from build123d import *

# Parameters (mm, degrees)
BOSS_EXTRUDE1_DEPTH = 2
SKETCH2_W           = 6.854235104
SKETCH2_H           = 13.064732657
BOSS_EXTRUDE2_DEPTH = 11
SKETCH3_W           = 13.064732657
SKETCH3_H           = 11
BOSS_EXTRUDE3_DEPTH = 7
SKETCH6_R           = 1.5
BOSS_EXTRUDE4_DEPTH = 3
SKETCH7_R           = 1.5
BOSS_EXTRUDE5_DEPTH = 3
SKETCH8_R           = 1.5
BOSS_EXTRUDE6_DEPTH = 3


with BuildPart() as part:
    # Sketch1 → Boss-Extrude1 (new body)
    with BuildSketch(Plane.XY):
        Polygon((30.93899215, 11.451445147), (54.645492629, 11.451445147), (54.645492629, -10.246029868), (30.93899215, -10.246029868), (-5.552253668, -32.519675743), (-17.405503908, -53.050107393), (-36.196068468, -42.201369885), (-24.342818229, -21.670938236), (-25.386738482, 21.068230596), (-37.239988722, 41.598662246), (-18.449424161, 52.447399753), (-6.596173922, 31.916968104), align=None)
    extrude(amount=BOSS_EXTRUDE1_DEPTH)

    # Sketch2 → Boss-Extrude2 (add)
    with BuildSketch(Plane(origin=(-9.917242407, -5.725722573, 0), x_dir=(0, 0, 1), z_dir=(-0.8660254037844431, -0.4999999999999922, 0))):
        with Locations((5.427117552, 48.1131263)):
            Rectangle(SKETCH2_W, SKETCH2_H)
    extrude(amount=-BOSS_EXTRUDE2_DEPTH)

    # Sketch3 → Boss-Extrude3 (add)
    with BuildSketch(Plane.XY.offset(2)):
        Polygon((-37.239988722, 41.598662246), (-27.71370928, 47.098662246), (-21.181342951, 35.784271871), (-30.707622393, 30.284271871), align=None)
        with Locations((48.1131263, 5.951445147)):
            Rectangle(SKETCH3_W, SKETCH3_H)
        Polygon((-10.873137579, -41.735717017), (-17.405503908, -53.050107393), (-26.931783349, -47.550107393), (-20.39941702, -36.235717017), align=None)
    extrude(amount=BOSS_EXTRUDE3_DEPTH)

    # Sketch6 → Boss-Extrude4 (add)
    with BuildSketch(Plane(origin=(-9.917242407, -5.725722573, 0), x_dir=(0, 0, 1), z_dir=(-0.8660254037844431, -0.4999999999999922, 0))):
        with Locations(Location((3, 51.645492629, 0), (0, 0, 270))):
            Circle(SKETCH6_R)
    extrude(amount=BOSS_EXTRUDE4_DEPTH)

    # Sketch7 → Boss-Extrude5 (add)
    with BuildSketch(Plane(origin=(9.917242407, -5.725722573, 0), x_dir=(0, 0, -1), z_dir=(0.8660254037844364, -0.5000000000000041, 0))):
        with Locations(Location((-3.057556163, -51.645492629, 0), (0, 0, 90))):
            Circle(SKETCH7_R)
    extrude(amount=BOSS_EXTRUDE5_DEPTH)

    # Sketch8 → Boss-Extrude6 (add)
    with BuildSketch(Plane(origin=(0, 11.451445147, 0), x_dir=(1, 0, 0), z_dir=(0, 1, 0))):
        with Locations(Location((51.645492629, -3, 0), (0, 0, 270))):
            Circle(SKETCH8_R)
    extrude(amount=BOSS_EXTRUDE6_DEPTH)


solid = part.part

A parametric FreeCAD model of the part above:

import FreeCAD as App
import Part
import Sketcher

V = App.Vector
Q = App.Units.Quantity


def add_polygon(sketch, points):
    """Adds a closed chain of lines whose ends are joined by coincident constraints."""
    first, n = sketch.GeometryCount, len(points)
    for a, b in zip(points, points[1:] + points[:1]):
        sketch.addGeometry(Part.LineSegment(App.Vector(*a, 0), App.Vector(*b, 0)), False)
    for i in range(n):
        sketch.addConstraint(Sketcher.Constraint("Coincident", first + i, 2, first + (i + 1) % n, 1))

doc = App.newDocument("Part")
body = doc.addObject("PartDesign::Body", "Body")

# Sketch on XY plane
sketch1 = body.newObject("Sketcher::SketchObject", "Sketch")
sketch1.AttachmentSupport = (doc.getObject("XY_Plane"), [""])
sketch1.MapMode = "FlatFace"
add_polygon(sketch1, [(55, 11), (31, 11), (-7, 32), (-18, 52), (-37, 42), (-25, 21), (-24, -22), (-36, -42), (-17, -53), (-6, -33), (31, -10), (55, -10)])  # lines 0-11
sketch1.addConstraint([
    Sketcher.Constraint("Horizontal", 0),
    Sketcher.Constraint("Horizontal", 10),
    Sketcher.Constraint("Vertical", 11),
    Sketcher.Constraint("Perpendicular", 2, 3),
    Sketcher.Constraint("Perpendicular", 3, 4),
    Sketcher.Constraint("Perpendicular", 6, 7),
    Sketcher.Constraint("Perpendicular", 7, 8),
    Sketcher.Constraint("Vertical", 0, 2, 9, 2),
    Sketcher.Constraint("Equal", 2, 4),
    Sketcher.Constraint("Equal", 1, 5),
    Sketcher.Constraint("Equal", 4, 6),
    Sketcher.Constraint("Equal", 3, 7),
    Sketcher.Constraint("Equal", 6, 8),
    Sketcher.Constraint("Equal", 5, 9),
    Sketcher.Constraint("Angle", 2, Q("120 deg")),
    Sketcher.Constraint("Angle", 6, Q("-120 deg")),
    Sketcher.Constraint("DistanceX", 0, 2, 0, 1, Q("23.7065 mm")),
    Sketcher.Constraint("Distance", 2, Q("23.7065 mm")),
    Sketcher.Constraint("DistanceY", -1, 1, 2, 2, Q("52.4474 mm")),
    Sketcher.Constraint("DistanceY", 5, 2, 3, 2, Q("63.2696 mm")),
    Sketcher.Constraint("DistanceY", 11, 1, 11, 2, Q("21.697475 mm")),
    Sketcher.Constraint("DistanceX", 3, 2, -1, 1, Q("37.239989 mm")),
    Sketcher.Constraint("DistanceY", -1, 1, 4, 2, Q("21.068231 mm")),
    Sketcher.Constraint("DistanceX", 5, 2, -1, 1, Q("24.342818 mm")),
])
pad1 = body.newObject("PartDesign::Pad", "Pad")
pad1.Profile = sketch1
pad1.Length = 2

# Sketch on an angled plane
sketch2 = body.newObject("Sketcher::SketchObject", "Sketch001")
sketch2.Placement = App.Placement(V(-9.917242, -5.725723, 0), App.Rotation(V(0, 0, 1), V(-0.5, 0.866025404, 0), V(-0.866025404, -0.5, 0), "ZXY"))
add_polygon(sketch2, [(2, 55), (2, 42), (9, 42), (9, 55)])  # lines 0-3
sketch2.addConstraint([
    Sketcher.Constraint("Vertical", 0),
    Sketcher.Constraint("Horizontal", 1),
    Sketcher.Constraint("Vertical", 2),
    Sketcher.Constraint("Horizontal", 3),
    Sketcher.Constraint("DistanceX", -1, 1, 0, 2, Q("2 mm")),
    Sketcher.Constraint("DistanceX", 1, 1, 1, 2, Q("6.854235 mm")),
    Sketcher.Constraint("DistanceY", 0, 2, 0, 1, Q("13.064733 mm")),
    Sketcher.Constraint("DistanceY", -1, 1, 0, 2, Q("41.58076 mm")),
])
pad2 = body.newObject("PartDesign::Pad", "Pad001")
pad2.Profile = sketch2
pad2.Length = 11
pad2.Reversed = True

# Sketch on XY plane
sketch3 = body.newObject("Sketcher::SketchObject", "Sketch002")
sketch3.AttachmentSupport = (doc.getObject("XY_Plane"), [""])
sketch3.MapMode = "FlatFace"
sketch3.AttachmentOffset = App.Placement(V(0, 0, 2), App.Rotation())
add_polygon(sketch3, [(-28, 47), (-37, 42), (-31, 30), (-21, 36)])  # lines 0-3
add_polygon(sketch3, [(42, 11), (42, 0), (55, 0), (55, 11)])  # lines 4-7
add_polygon(sketch3, [(-17, -53), (-11, -42), (-20, -36), (-27, -48)])  # lines 8-11
sketch3.addConstraint([
    Sketcher.Constraint("Vertical", 4),
    Sketcher.Constraint("Horizontal", 5),
    Sketcher.Constraint("Vertical", 6),
    Sketcher.Constraint("Horizontal", 7),
    Sketcher.Constraint("Perpendicular", 0, 1),
    Sketcher.Constraint("Perpendicular", 1, 2),
    Sketcher.Constraint("Perpendicular", 2, 3),
    Sketcher.Constraint("Perpendicular", 8, 9),
    Sketcher.Constraint("Perpendicular", 9, 10),
    Sketcher.Constraint("Perpendicular", 10, 11),
    Sketcher.Constraint("Equal", 3, 8),
    Sketcher.Constraint("Equal", 2, 9),
    Sketcher.Constraint("DistanceY", 4, 2, 4, 1, Q("11 mm")),
    Sketcher.Constraint("Angle", 0, Q("-150 deg")),
    Sketcher.Constraint("Angle", 8, Q("60 deg")),
    Sketcher.Constraint("Distance", 0, Q("11 mm")),
    Sketcher.Constraint("DistanceX", 3, 2, 5, 2, Q("82.359202 mm")),
    Sketcher.Constraint("DistanceX", 5, 1, 5, 2, Q("13.064733 mm")),
    Sketcher.Constraint("DistanceX", 0, 2, -1, 1, Q("37.239989 mm")),
    Sketcher.Constraint("DistanceY", -1, 1, 1, 2, Q("30.284272 mm")),
    Sketcher.Constraint("DistanceY", 1, 2, 0, 2, Q("11.31439 mm")),
    Sketcher.Constraint("DistanceY", 8, 2, 1, 2, Q("72.019989 mm")),
    Sketcher.Constraint("DistanceX", 8, 2, 5, 2, Q("65.51863 mm")),
    Sketcher.Constraint("DistanceY", -1, 1, 4, 2, Q("0.451445 mm")),
])
pad3 = body.newObject("PartDesign::Pad", "Pad002")
pad3.Profile = sketch3
pad3.Length = 7

# Sketch on an angled plane
sketch4 = body.newObject("Sketcher::SketchObject", "Sketch003")
sketch4.Placement = App.Placement(V(-9.917242, -5.725723, 0), App.Rotation(V(0, 0, 1), V(-0.5, 0.866025404, 0), V(-0.866025404, -0.5, 0), "ZXY"))
sketch4.addGeometry(Part.Circle(V(3, 51.6, 0), V(0, 0, 1), 1.5), False)
sketch4.addConstraint([
    Sketcher.Constraint("Diameter", 0, Q("3 mm")),
    Sketcher.Constraint("DistanceX", -1, 1, 0, 3, Q("3 mm")),
    Sketcher.Constraint("DistanceY", -1, 1, 0, 3, Q("51.645493 mm")),
])
pad4 = body.newObject("PartDesign::Pad", "Pad003")
pad4.Profile = sketch4
pad4.Length = 3

# Sketch on an angled plane
sketch5 = body.newObject("Sketcher::SketchObject", "Sketch004")
sketch5.Placement = App.Placement(V(9.917242, -5.725723, 0), App.Rotation(V(0, 0, -1), V(0.5, 0.866025404, 0), V(0.866025404, -0.5, 0), "ZXY"))
sketch5.addGeometry(Part.Circle(V(-3.1, -51.6, 0), V(0, 0, 1), 1.5), False)
sketch5.addConstraint([
    Sketcher.Constraint("Diameter", 0, Q("3 mm")),
    Sketcher.Constraint("DistanceX", 0, 3, -1, 1, Q("3.057556 mm")),
    Sketcher.Constraint("DistanceY", 0, 3, -1, 1, Q("51.645493 mm")),
])
pad5 = body.newObject("PartDesign::Pad", "Pad004")
pad5.Profile = sketch5
pad5.Length = 3

# Sketch on XZ plane
sketch6 = body.newObject("Sketcher::SketchObject", "Sketch005")
sketch6.AttachmentSupport = (doc.getObject("XZ_Plane"), [""])
sketch6.MapMode = "FlatFace"
sketch6.AttachmentOffset = App.Placement(V(0, 0, -11.451445), App.Rotation())
sketch6.addGeometry(Part.Circle(V(51.6, 3, 0), V(0, 0, 1), 1.5), False)
sketch6.addConstraint([
    Sketcher.Constraint("Diameter", 0, Q("3 mm")),
    Sketcher.Constraint("DistanceY", -1, 1, 0, 3, Q("3 mm")),
    Sketcher.Constraint("DistanceX", -1, 1, 0, 3, Q("51.645493 mm")),
])
pad6 = body.newObject("PartDesign::Pad", "Pad005")
pad6.Profile = sketch6
pad6.Length = 3
pad6.Reversed = True

doc.recompute()
